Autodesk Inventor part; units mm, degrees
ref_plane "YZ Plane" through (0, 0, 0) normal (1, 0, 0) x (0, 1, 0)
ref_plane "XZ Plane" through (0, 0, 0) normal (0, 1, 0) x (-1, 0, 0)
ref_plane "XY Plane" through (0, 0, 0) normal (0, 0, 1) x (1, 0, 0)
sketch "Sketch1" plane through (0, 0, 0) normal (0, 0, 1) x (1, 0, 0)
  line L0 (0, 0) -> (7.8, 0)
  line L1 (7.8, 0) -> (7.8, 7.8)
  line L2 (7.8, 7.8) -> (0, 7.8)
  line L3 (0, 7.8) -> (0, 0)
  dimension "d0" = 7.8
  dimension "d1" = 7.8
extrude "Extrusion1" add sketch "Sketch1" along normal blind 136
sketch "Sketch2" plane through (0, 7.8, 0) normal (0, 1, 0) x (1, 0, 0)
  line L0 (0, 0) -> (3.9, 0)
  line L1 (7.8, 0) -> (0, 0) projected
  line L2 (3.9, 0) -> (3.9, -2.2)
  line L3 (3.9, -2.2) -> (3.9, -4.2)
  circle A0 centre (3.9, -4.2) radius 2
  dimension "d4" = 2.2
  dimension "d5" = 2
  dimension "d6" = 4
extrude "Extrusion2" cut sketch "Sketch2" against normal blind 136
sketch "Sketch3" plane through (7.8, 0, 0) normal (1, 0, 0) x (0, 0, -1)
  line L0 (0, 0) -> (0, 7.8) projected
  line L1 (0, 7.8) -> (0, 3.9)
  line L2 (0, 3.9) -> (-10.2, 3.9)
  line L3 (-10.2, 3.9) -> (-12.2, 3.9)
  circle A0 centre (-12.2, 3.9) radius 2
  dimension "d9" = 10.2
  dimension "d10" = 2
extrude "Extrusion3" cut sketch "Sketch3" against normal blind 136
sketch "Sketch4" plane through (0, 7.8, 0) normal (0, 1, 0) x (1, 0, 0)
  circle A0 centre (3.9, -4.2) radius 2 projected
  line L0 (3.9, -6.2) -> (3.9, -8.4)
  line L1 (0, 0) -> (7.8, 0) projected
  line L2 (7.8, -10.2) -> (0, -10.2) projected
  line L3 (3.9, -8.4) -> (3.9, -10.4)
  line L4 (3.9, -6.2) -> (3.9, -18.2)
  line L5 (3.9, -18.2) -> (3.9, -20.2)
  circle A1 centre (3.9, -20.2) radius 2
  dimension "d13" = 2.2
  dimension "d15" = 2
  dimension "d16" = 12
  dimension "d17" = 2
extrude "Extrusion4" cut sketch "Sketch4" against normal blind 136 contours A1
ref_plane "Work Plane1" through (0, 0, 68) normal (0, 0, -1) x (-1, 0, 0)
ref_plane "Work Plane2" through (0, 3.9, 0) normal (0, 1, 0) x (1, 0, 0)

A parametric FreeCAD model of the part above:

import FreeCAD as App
import Part
import Sketcher
Q = App.Units.Quantity


def add_polygon(sketch, points):
    """Adds a closed chain of lines whose ends are joined by coincident constraints."""
    first, n = sketch.GeometryCount, len(points)
    for a, b in zip(points, points[1:] + points[:1]):
        sketch.addGeometry(Part.LineSegment(App.Vector(*a, 0), App.Vector(*b, 0)), False)
    for i in range(n):
        sketch.addConstraint(Sketcher.Constraint("Coincident", first + i, 2, first + (i + 1) % n, 1))

doc = App.newDocument("Part")
body = doc.addObject("PartDesign::Body", "Body")

sketch1 = doc.addObject("Sketcher::SketchObject", "Sketch")
body.addObject(sketch1)
sketch1.AttachmentSupport = (doc.XY_Plane, [""])
sketch1.MapMode = "FlatFace"
add_polygon(sketch1, [(0, 7.8), (0, 0), (7.8, 0), (7.8, 7.8)])
sketch1.addConstraint(Sketcher.Constraint("Vertical", 0))
sketch1.addConstraint(Sketcher.Constraint("Horizontal", 1))
sketch1.addConstraint(Sketcher.Constraint("Vertical", 2))
sketch1.addConstraint(Sketcher.Constraint("Horizontal", 3))
sketch1.addConstraint(Sketcher.Constraint("Coincident", 0, 2, -1, 1))
sketch1.addConstraint(Sketcher.Constraint("Equal", 3, 0))
sketch1.addConstraint(Sketcher.Constraint("DistanceX", 1, 1, 1, 2, Q("7.8 mm")))
pad1 = doc.addObject("PartDesign::Pad", "Pad")
body.addObject(pad1)
pad1.Profile = sketch1
pad1.Length = 136

sketch2 = doc.addObject("Sketcher::SketchObject", "Sketch001")
body.addObject(sketch2)
sketch2.AttachmentSupport = (doc.XZ_Plane, [""])
sketch2.MapMode = "FlatFace"
sketch2.AttachmentOffset = App.Placement(App.Vector(0, 0, -7.8), App.Rotation())
sketch2.addGeometry(Part.Circle(App.Vector(3.9, 4.2, 0), App.Vector(0, 0, 1), 2), False)
sketch2.addConstraint(Sketcher.Constraint("Diameter", 0, Q("4 mm")))
sketch2.addConstraint(Sketcher.Constraint("DistanceX", -1, 1, 0, 3, Q("3.9 mm")))
sketch2.addConstraint(Sketcher.Constraint("DistanceY", -1, 1, 0, 3, Q("4.2 mm")))
pocket1 = doc.addObject("PartDesign::Pocket", "Pocket")
body.addObject(pocket1)
pocket1.Profile = sketch2
pocket1.Length = 136
pocket1.Reversed = True

sketch3 = doc.addObject("Sketcher::SketchObject", "Sketch002")
body.addObject(sketch3)
sketch3.AttachmentSupport = (doc.YZ_Plane, [""])
sketch3.MapMode = "FlatFace"
sketch3.AttachmentOffset = App.Placement(App.Vector(0, 0, 7.8), App.Rotation())
sketch3.addGeometry(Part.Circle(App.Vector(3.9, 12.2, 0), App.Vector(0, 0, 1), 2), False)
sketch3.addConstraint(Sketcher.Constraint("Diameter", 0, Q("4 mm")))
sketch3.addConstraint(Sketcher.Constraint("DistanceX", -1, 1, 0, 3, Q("3.9 mm")))
sketch3.addConstraint(Sketcher.Constraint("DistanceY", -1, 1, 0, 3, Q("12.2 mm")))
pocket2 = doc.addObject("PartDesign::Pocket", "Pocket001")
body.addObject(pocket2)
pocket2.Profile = sketch3
pocket2.Length = 136

sketch4 = doc.addObject("Sketcher::SketchObject", "Sketch003")
body.addObject(sketch4)
sketch4.AttachmentSupport = (doc.XZ_Plane, [""])
sketch4.MapMode = "FlatFace"
sketch4.AttachmentOffset = App.Placement(App.Vector(0, 0, -7.8), App.Rotation())
sketch4.addGeometry(Part.Circle(App.Vector(3.9, 20.2, 0), App.Vector(0, 0, 1), 2), False)
sketch4.addConstraint(Sketcher.Constraint("Diameter", 0, Q("4 mm")))
sketch4.addConstraint(Sketcher.Constraint("DistanceX", -1, 1, 0, 3, Q("3.9 mm")))
sketch4.addConstraint(Sketcher.Constraint("DistanceY", -1, 1, 0, 3, Q("20.2 mm")))
pocket3 = doc.addObject("PartDesign::Pocket", "Pocket002")
body.addObject(pocket3)
pocket3.Profile = sketch4
pocket3.Length = 136
pocket3.Reversed = True

doc.recompute()
